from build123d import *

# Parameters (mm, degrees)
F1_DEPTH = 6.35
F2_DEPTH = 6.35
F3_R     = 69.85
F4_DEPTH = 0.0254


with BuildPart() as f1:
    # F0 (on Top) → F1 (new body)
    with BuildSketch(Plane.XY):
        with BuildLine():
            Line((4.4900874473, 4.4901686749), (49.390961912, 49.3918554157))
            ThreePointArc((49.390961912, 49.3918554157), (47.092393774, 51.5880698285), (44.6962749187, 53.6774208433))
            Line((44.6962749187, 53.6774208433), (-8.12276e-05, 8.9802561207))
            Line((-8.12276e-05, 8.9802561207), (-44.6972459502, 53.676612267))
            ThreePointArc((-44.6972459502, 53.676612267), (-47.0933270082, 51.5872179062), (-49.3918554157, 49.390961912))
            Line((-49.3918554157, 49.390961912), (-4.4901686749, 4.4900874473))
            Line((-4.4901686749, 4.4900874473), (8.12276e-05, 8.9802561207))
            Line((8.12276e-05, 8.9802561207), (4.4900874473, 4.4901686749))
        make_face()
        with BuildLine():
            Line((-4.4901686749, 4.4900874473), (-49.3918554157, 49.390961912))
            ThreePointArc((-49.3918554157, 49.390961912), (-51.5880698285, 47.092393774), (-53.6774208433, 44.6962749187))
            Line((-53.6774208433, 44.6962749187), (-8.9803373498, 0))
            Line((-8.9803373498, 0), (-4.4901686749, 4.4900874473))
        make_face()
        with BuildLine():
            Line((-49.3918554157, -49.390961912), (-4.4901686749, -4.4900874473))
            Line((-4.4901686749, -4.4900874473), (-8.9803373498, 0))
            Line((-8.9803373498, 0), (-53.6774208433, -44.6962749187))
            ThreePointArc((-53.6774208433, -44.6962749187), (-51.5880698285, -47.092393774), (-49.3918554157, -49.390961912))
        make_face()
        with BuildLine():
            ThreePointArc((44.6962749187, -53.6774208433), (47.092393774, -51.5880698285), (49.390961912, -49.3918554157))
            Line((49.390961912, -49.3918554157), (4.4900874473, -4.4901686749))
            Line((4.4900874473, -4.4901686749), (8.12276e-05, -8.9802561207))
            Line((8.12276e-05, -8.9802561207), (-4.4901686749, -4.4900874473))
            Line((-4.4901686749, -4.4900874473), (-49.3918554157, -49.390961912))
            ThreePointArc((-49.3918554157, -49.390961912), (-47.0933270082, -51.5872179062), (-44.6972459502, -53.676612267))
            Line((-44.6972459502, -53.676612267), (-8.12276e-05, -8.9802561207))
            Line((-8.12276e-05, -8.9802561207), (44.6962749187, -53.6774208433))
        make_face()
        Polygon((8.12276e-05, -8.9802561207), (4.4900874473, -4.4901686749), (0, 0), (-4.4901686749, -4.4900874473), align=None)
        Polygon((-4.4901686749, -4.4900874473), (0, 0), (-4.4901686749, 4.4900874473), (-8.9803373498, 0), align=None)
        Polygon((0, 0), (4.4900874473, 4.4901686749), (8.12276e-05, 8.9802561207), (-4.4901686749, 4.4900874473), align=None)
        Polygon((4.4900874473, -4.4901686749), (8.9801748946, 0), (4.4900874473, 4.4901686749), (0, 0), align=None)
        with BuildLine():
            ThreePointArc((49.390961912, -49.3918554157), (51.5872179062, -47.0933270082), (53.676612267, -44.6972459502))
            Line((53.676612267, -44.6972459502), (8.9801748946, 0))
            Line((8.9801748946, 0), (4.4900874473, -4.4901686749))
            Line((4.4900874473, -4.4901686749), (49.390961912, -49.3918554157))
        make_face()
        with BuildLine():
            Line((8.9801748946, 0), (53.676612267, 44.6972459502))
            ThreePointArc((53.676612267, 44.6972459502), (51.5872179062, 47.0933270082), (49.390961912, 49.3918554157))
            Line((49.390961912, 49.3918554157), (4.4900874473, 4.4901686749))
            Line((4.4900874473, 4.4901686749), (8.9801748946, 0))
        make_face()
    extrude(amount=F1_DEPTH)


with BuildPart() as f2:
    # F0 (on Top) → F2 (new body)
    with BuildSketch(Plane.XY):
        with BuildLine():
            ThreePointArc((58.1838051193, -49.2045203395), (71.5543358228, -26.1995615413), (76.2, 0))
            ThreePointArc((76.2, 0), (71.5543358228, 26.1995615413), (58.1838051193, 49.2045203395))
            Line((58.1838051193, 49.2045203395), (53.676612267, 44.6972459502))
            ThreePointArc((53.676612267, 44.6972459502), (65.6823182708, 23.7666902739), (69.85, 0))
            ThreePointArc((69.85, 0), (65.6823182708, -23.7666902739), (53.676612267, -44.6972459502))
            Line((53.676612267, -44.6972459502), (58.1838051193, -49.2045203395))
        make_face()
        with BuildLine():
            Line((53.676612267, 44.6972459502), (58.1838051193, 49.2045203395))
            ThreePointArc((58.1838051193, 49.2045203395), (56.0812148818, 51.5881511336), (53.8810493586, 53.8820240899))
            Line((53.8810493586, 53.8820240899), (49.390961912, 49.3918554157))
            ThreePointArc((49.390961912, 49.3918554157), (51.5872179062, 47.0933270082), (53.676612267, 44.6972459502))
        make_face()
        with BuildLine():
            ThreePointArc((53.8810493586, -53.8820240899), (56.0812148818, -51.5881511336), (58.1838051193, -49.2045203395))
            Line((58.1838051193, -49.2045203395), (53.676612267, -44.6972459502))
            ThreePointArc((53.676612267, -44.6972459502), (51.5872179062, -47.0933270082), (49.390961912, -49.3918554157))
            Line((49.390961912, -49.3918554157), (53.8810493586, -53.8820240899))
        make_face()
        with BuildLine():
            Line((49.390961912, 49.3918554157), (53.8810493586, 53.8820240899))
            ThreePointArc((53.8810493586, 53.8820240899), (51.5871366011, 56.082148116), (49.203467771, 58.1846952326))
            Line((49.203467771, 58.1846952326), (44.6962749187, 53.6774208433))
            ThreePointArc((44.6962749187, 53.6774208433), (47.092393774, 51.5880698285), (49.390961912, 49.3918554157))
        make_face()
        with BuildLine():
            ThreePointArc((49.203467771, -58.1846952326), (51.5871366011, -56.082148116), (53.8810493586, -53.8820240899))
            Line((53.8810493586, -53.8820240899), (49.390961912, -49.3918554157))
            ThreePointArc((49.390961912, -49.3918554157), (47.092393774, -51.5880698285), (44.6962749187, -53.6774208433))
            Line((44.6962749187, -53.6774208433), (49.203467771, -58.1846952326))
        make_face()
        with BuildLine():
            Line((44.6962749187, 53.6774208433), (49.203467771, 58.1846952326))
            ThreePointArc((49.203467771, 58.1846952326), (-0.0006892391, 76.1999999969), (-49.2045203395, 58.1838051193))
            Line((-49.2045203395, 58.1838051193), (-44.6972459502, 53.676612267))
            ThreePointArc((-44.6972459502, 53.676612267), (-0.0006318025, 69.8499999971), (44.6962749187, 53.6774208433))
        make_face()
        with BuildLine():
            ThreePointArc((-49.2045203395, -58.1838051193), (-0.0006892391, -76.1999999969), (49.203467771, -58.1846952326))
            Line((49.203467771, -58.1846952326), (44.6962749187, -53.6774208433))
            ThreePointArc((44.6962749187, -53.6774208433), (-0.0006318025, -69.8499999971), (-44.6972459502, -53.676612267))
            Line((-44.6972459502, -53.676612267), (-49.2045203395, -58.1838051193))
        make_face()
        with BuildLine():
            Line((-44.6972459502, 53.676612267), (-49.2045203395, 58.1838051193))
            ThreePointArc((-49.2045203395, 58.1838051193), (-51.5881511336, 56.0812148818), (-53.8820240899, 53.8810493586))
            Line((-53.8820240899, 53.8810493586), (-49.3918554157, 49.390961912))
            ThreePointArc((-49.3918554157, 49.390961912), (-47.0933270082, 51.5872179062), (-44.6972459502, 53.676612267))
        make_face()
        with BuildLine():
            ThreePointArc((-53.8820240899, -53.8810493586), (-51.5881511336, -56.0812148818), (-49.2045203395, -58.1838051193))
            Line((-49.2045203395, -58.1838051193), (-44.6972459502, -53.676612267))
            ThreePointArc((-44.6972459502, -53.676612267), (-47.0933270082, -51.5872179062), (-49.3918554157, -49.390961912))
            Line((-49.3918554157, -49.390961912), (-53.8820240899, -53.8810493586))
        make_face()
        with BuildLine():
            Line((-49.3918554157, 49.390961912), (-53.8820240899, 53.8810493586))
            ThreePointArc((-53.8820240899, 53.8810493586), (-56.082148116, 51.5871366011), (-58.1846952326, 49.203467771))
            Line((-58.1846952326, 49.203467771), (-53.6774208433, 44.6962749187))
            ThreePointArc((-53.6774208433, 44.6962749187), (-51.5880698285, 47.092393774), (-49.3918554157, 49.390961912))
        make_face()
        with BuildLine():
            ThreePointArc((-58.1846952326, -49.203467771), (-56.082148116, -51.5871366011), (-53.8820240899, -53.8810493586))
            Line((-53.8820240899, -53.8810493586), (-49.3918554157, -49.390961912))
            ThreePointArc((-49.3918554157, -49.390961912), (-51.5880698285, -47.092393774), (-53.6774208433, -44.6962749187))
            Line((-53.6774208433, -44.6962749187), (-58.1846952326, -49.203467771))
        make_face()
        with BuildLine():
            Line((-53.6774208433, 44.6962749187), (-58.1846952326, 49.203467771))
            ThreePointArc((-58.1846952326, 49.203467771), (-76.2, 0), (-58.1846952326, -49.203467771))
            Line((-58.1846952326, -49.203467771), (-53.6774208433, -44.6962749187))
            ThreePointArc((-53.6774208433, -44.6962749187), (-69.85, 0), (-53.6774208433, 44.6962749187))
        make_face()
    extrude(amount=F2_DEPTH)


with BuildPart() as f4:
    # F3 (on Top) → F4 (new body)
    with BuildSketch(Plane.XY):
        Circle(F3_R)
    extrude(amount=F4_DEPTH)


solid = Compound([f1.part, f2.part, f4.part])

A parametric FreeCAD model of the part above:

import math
import FreeCAD as App
import Part
import Sketcher

V = App.Vector
Q = App.Units.Quantity

doc = App.newDocument("Part")
body = doc.addObject("PartDesign::Body", "Body")

# Sketch on XY plane
sketch1 = body.newObject("Sketcher::SketchObject", "Sketch")
sketch1.AttachmentSupport = (doc.getObject("XY_Plane"), [""])
sketch1.MapMode = "FlatFace"
sketch1.addGeometry(Part.ArcOfCircle(Part.Circle(V(0, 0, 0), V(0, 0, 1), 69.85), math.radians(129.78461), math.radians(135.000518)), False)
sketch1.addGeometry(Part.ArcOfCircle(Part.Circle(V(0, 0, 0), V(0, 0, 1), 69.85), math.radians(135.000518), math.radians(140.216427)), False)
sketch1.addGeometry(Part.LineSegment(V(-53.677421, 44.696275, 0), V(-8.980337, 0, 0)), False)
sketch1.addGeometry(Part.LineSegment(V(-8.980337, 0, 0), V(-53.677421, -44.696275, 0)), False)
sketch1.addGeometry(Part.ArcOfCircle(Part.Circle(V(0, 0, 0), V(0, 0, 1), 69.85), math.radians(-140.216427), math.radians(-135.000518)), False)
sketch1.addGeometry(Part.ArcOfCircle(Part.Circle(V(0, 0, 0), V(0, 0, 1), 69.85), math.radians(-135.000518), math.radians(-129.78461)), False)
sketch1.addGeometry(Part.LineSegment(V(-44.697246, -53.676612, 0), V(-0.000081, -8.980256, 0)), False)
sketch1.addGeometry(Part.LineSegment(V(-0.000081, -8.980256, 0), V(44.696275, -53.677421, 0)), False)
sketch1.addGeometry(Part.ArcOfCircle(Part.Circle(V(0, 0, 0), V(0, 0, 1), 69.85), math.radians(-50.216427), math.radians(-45.000518)), False)
sketch1.addGeometry(Part.ArcOfCircle(Part.Circle(V(0, 0, 0), V(0, 0, 1), 69.85), math.radians(-45.000518), math.radians(-39.78461)), False)
sketch1.addGeometry(Part.LineSegment(V(53.676612, -44.697246, 0), V(8.980175, 0, 0)), False)
sketch1.addGeometry(Part.LineSegment(V(8.980175, 0, 0), V(53.676612, 44.697246, 0)), False)
sketch1.addGeometry(Part.ArcOfCircle(Part.Circle(V(0, 0, 0), V(0, 0, 1), 69.85), math.radians(39.78461), math.radians(45.000518)), False)
sketch1.addGeometry(Part.ArcOfCircle(Part.Circle(V(0, 0, 0), V(0, 0, 1), 69.85), math.radians(45.000518), math.radians(50.216427)), False)
sketch1.addGeometry(Part.LineSegment(V(44.696275, 53.677421, 0), V(-0.000081, 8.980256, 0)), False)
sketch1.addGeometry(Part.LineSegment(V(-0.000081, 8.980256, 0), V(-44.697246, 53.676612, 0)), False)
sketch1.addConstraint(Sketcher.Constraint("Tangent", 0, 2, 1, 1))
sketch1.addConstraint(Sketcher.Constraint("Coincident", 1, 2, 2, 1))
sketch1.addConstraint(Sketcher.Constraint("Coincident", 2, 2, 3, 1))
sketch1.addConstraint(Sketcher.Constraint("Coincident", 3, 2, 4, 1))
sketch1.addConstraint(Sketcher.Constraint("Tangent", 4, 2, 5, 1))
sketch1.addConstraint(Sketcher.Constraint("Coincident", 5, 2, 6, 1))
sketch1.addConstraint(Sketcher.Constraint("Coincident", 6, 2, 7, 1))
sketch1.addConstraint(Sketcher.Constraint("Coincident", 7, 2, 8, 1))
sketch1.addConstraint(Sketcher.Constraint("Tangent", 8, 2, 9, 1))
sketch1.addConstraint(Sketcher.Constraint("Coincident", 9, 2, 10, 1))
sketch1.addConstraint(Sketcher.Constraint("Coincident", 10, 2, 11, 1))
sketch1.addConstraint(Sketcher.Constraint("Coincident", 11, 2, 12, 1))
sketch1.addConstraint(Sketcher.Constraint("Tangent", 12, 2, 13, 1))
sketch1.addConstraint(Sketcher.Constraint("Coincident", 13, 2, 14, 1))
sketch1.addConstraint(Sketcher.Constraint("Coincident", 14, 2, 15, 1))
sketch1.addConstraint(Sketcher.Constraint("Coincident", 15, 2, 0, 1))
sketch1.addConstraint(Sketcher.Constraint("Coincident", 0, 3, -1, 1))
sketch1.addConstraint(Sketcher.Constraint("Coincident", 4, 3, -1, 1))
sketch1.addConstraint(Sketcher.Constraint("Coincident", 8, 3, -1, 1))
sketch1.addConstraint(Sketcher.Constraint("Coincident", 12, 3, -1, 1))
sketch1.addConstraint(Sketcher.Constraint("Equal", 0, 1))
sketch1.addConstraint(Sketcher.Constraint("Equal", 1, 4))
sketch1.addConstraint(Sketcher.Constraint("Equal", 4, 5))
sketch1.addConstraint(Sketcher.Constraint("Equal", 5, 8))
sketch1.addConstraint(Sketcher.Constraint("Equal", 8, 9))
sketch1.addConstraint(Sketcher.Constraint("Equal", 9, 12))
sketch1.addConstraint(Sketcher.Constraint("Equal", 12, 13))
sketch1.addConstraint(Sketcher.Constraint("Symmetric", 6, 2, 14, 2, -1))
sketch1.addConstraint(Sketcher.Constraint("PointOnObject", 2, 2, -1))
sketch1.addConstraint(Sketcher.Constraint("PointOnObject", 10, 2, -1))
sketch1.addConstraint(Sketcher.Constraint("Parallel", 3, 6))
sketch1.addConstraint(Sketcher.Constraint("Perpendicular", 6, 7))
sketch1.addConstraint(Sketcher.Constraint("Parallel", 7, 10))
sketch1.addConstraint(Sketcher.Constraint("Perpendicular", 2, 11))
sketch1.addConstraint(Sketcher.Constraint("Parallel", 11, 14))
sketch1.addConstraint(Sketcher.Constraint("Perpendicular", 14, 15))
sketch1.addConstraint(Sketcher.Constraint("Vertical", 1, 2, 3, 2))
sketch1.addConstraint(Sketcher.Constraint("Vertical", 0, 2, 4, 2))
sketch1.addConstraint(Sketcher.Constraint("Vertical", 8, 2, 12, 2))
sketch1.addConstraint(Sketcher.Constraint("Equal", 6, 7))
sketch1.addConstraint(Sketcher.Constraint("Radius", 0, Q("2.75 in")))
sketch1.addConstraint(Sketcher.Constraint("DistanceY", 8, 2, 6, 2, 40.411599))
sketch1.addConstraint(Sketcher.Constraint("DistanceX", 10, 2, 13, 2, 35.7161))
sketch1.addConstraint(Sketcher.Constraint("Distance", 2, 63.21065))
sketch1.addConstraint(Sketcher.Constraint("Distance", 10, 63.21088))
sketch1.addConstraint(Sketcher.Constraint("DistanceY", -1, 1, 0, 2, 49.390962))
sketch1.addConstraint(Sketcher.Constraint("DistanceX", 1, 2, -1, 1, 53.677421))
pad1 = body.newObject("PartDesign::Pad", "Pad")
pad1.Profile = sketch1
pad1.Length = Q("0.25 in")
body2 = doc.addObject("PartDesign::Body", "Body001")

# Sketch on XY plane
sketch2 = body2.newObject("Sketcher::SketchObject", "Sketch001")
sketch2.AttachmentSupport = (doc.getObject("XY_Plane001"), [""])
sketch2.MapMode = "FlatFace"
sketch2.addGeometry(Part.ArcOfCircle(Part.Circle(V(0, 0, 0), V(0, 0, 1), 76.2), math.radians(-40.220326), math.radians(0)), False)
sketch2.addGeometry(Part.ArcOfCircle(Part.Circle(V(0, 0, 0), V(0, 0, 1), 76.2), math.radians(0), math.radians(40.220326)), False)
sketch2.addGeometry(Part.ArcOfCircle(Part.Circle(V(0, 0, 0), V(0, 0, 1), 76.2), math.radians(40.220326), math.radians(45.000518)), False)
sketch2.addGeometry(Part.ArcOfCircle(Part.Circle(V(0, 0, 0), V(0, 0, 1), 76.2), math.radians(45.000518), math.radians(49.78071)), False)
sketch2.addGeometry(Part.ArcOfCircle(Part.Circle(V(0, 0, 0), V(0, 0, 1), 76.2), math.radians(49.78071), math.radians(130.220326)), False)
sketch2.addGeometry(Part.ArcOfCircle(Part.Circle(V(0, 0, 0), V(0, 0, 1), 76.2), math.radians(130.220326), math.radians(135.000518)), False)
sketch2.addGeometry(Part.ArcOfCircle(Part.Circle(V(0, 0, 0), V(0, 0, 1), 76.2), math.radians(135.000518), math.radians(139.78071)), False)
sketch2.addGeometry(Part.ArcOfCircle(Part.Circle(V(0, 0, 0), V(0, 0, 1), 76.2), math.radians(139.78071), math.radians(220.21929)), False)
sketch2.addGeometry(Part.ArcOfCircle(Part.Circle(V(0, 0, 0), V(0, 0, 1), 76.2), math.radians(-139.78071), math.radians(-135.000518)), False)
sketch2.addGeometry(Part.ArcOfCircle(Part.Circle(V(0, 0, 0), V(0, 0, 1), 76.2), math.radians(-135.000518), math.radians(-130.220326)), False)
sketch2.addGeometry(Part.ArcOfCircle(Part.Circle(V(0, 0, 0), V(0, 0, 1), 76.2), math.radians(-130.220326), math.radians(-49.78071)), False)
sketch2.addGeometry(Part.ArcOfCircle(Part.Circle(V(0, 0, 0), V(0, 0, 1), 76.2), math.radians(-49.78071), math.radians(-45.000518)), False)
sketch2.addGeometry(Part.ArcOfCircle(Part.Circle(V(0, 0, 0), V(0, 0, 1), 76.2), math.radians(-45.000518), math.radians(-40.220326)), False)
sketch2.addGeometry(Part.ArcOfCircle(Part.Circle(V(0, 0, 0), V(0, 0, 1), 69.85), math.radians(135.000518), math.radians(140.216427)), False)
sketch2.addGeometry(Part.ArcOfCircle(Part.Circle(V(0, 0, 0), V(0, 0, 1), 69.85), math.radians(129.78461), math.radians(135.000518)), False)
sketch2.addGeometry(Part.ArcOfCircle(Part.Circle(V(0, 0, 0), V(0, 0, 1), 69.85), math.radians(50.216427), math.radians(129.78461)), False)
sketch2.addGeometry(Part.ArcOfCircle(Part.Circle(V(0, 0, 0), V(0, 0, 1), 69.85), math.radians(45.000518), math.radians(50.216427)), False)
sketch2.addGeometry(Part.ArcOfCircle(Part.Circle(V(0, 0, 0), V(0, 0, 1), 69.85), math.radians(39.78461), math.radians(45.000518)), False)
sketch2.addGeometry(Part.ArcOfCircle(Part.Circle(V(0, 0, 0), V(0, 0, 1), 69.85), math.radians(0), math.radians(39.78461)), False)
sketch2.addGeometry(Part.ArcOfCircle(Part.Circle(V(0, 0, 0), V(0, 0, 1), 69.85), math.radians(-39.78461), math.radians(0)), False)
sketch2.addGeometry(Part.ArcOfCircle(Part.Circle(V(0, 0, 0), V(0, 0, 1), 69.85), math.radians(-45.000518), math.radians(-39.78461)), False)
sketch2.addGeometry(Part.ArcOfCircle(Part.Circle(V(0, 0, 0), V(0, 0, 1), 69.85), math.radians(-50.216427), math.radians(-45.000518)), False)
sketch2.addGeometry(Part.ArcOfCircle(Part.Circle(V(0, 0, 0), V(0, 0, 1), 69.85), math.radians(-129.78461), math.radians(-50.216427)), False)
sketch2.addGeometry(Part.ArcOfCircle(Part.Circle(V(0, 0, 0), V(0, 0, 1), 69.85), math.radians(-135.000518), math.radians(-129.78461)), False)
sketch2.addGeometry(Part.ArcOfCircle(Part.Circle(V(0, 0, 0), V(0, 0, 1), 69.85), math.radians(-140.216427), math.radians(-135.000518)), False)
sketch2.addGeometry(Part.ArcOfCircle(Part.Circle(V(0, 0, 0), V(0, 0, 1), 69.85), math.radians(140.216427), math.radians(219.783573)), False)
sketch2.addConstraint(Sketcher.Constraint("Tangent", 0, 2, 1, 1))
sketch2.addConstraint(Sketcher.Constraint("Tangent", 1, 2, 2, 1))
sketch2.addConstraint(Sketcher.Constraint("Tangent", 2, 2, 3, 1))
sketch2.addConstraint(Sketcher.Constraint("Tangent", 3, 2, 4, 1))
sketch2.addConstraint(Sketcher.Constraint("Tangent", 4, 2, 5, 1))
sketch2.addConstraint(Sketcher.Constraint("Tangent", 5, 2, 6, 1))
sketch2.addConstraint(Sketcher.Constraint("Tangent", 6, 2, 7, 1))
sketch2.addConstraint(Sketcher.Constraint("Tangent", 7, 2, 8, 1))
sketch2.addConstraint(Sketcher.Constraint("Tangent", 8, 2, 9, 1))
sketch2.addConstraint(Sketcher.Constraint("Tangent", 9, 2, 10, 1))
sketch2.addConstraint(Sketcher.Constraint("Tangent", 10, 2, 11, 1))
sketch2.addConstraint(Sketcher.Constraint("Tangent", 11, 2, 12, 1))
sketch2.addConstraint(Sketcher.Constraint("Tangent", 12, 2, 0, 1))
sketch2.addConstraint(Sketcher.Constraint("Tangent", 13, 1, 14, 2))
sketch2.addConstraint(Sketcher.Constraint("Tangent", 14, 1, 15, 2))
sketch2.addConstraint(Sketcher.Constraint("Tangent", 15, 1, 16, 2))
sketch2.addConstraint(Sketcher.Constraint("Tangent", 16, 1, 17, 2))
sketch2.addConstraint(Sketcher.Constraint("Tangent", 17, 1, 18, 2))
sketch2.addConstraint(Sketcher.Constraint("Tangent", 18, 1, 19, 2))
sketch2.addConstraint(Sketcher.Constraint("Tangent", 19, 1, 20, 2))
sketch2.addConstraint(Sketcher.Constraint("Tangent", 20, 1, 21, 2))
sketch2.addConstraint(Sketcher.Constraint("Tangent", 21, 1, 22, 2))
sketch2.addConstraint(Sketcher.Constraint("Tangent", 22, 1, 23, 2))
sketch2.addConstraint(Sketcher.Constraint("Tangent", 23, 1, 24, 2))
sketch2.addConstraint(Sketcher.Constraint("Tangent", 24, 1, 25, 2))
sketch2.addConstraint(Sketcher.Constraint("Tangent", 25, 1, 13, 2))
sketch2.addConstraint(Sketcher.Constraint("Coincident", 0, 3, -1, 1))
sketch2.addConstraint(Sketcher.Constraint("Coincident", 2, 3, -1, 1))
sketch2.addConstraint(Sketcher.Constraint("Coincident", 4, 3, -1, 1))
sketch2.addConstraint(Sketcher.Constraint("Coincident", 6, 3, -1, 1))
sketch2.addConstraint(Sketcher.Constraint("Coincident", 8, 3, -1, 1))
sketch2.addConstraint(Sketcher.Constraint("Coincident", 10, 3, -1, 1))
sketch2.addConstraint(Sketcher.Constraint("Coincident", 13, 3, -1, 1))
sketch2.addConstraint(Sketcher.Constraint("Coincident", 15, 3, -1, 1))
sketch2.addConstraint(Sketcher.Constraint("Coincident", 17, 3, -1, 1))
sketch2.addConstraint(Sketcher.Constraint("Coincident", 19, 3, -1, 1))
sketch2.addConstraint(Sketcher.Constraint("Coincident", 21, 3, -1, 1))
sketch2.addConstraint(Sketcher.Constraint("Coincident", 23, 3, -1, 1))
sketch2.addConstraint(Sketcher.Constraint("PointOnObject", 0, 2, -1))
sketch2.addConstraint(Sketcher.Constraint("PointOnObject", 18, 1, -1))
sketch2.addConstraint(Sketcher.Constraint("Vertical", 6, 2, 7, 2))
sketch2.addConstraint(Sketcher.Constraint("Vertical", 5, 2, 8, 2))
sketch2.addConstraint(Sketcher.Constraint("Vertical", 4, 2, 9, 2))
sketch2.addConstraint(Sketcher.Constraint("Vertical", 3, 2, 10, 2))
sketch2.addConstraint(Sketcher.Constraint("Vertical", 2, 2, 11, 2))
sketch2.addConstraint(Sketcher.Constraint("Vertical", 1, 2, 12, 2))
sketch2.addConstraint(Sketcher.Constraint("Vertical", 17, 1, 19, 1))
sketch2.addConstraint(Sketcher.Constraint("Vertical", 16, 1, 20, 1))
sketch2.addConstraint(Sketcher.Constraint("Vertical", 15, 1, 21, 1))
sketch2.addConstraint(Sketcher.Constraint("Vertical", 14, 1, 22, 1))
sketch2.addConstraint(Sketcher.Constraint("Vertical", 13, 1, 23, 1))
sketch2.addConstraint(Sketcher.Constraint("Vertical", 24, 1, 25, 1))
sketch2.addConstraint(Sketcher.Constraint("Radius", 0, Q("3 in")))
sketch2.addConstraint(Sketcher.Constraint("Radius", 13, Q("2.75 in")))
sketch2.addConstraint(Sketcher.Constraint("DistanceX", 2, 2, 1, 2, Q("0.1693998 in")))
sketch2.addConstraint(Sketcher.Constraint("DistanceY", 5, 2, 4, 2, Q("0.1693998 in")))
sketch2.addConstraint(Sketcher.Constraint("DistanceY", 1, 2, 15, 1, 4.472901))
sketch2.addConstraint(Sketcher.Constraint("DistanceX", 24, 1, 9, 2, 4.472901))
sketch2.addConstraint(Sketcher.Constraint("DistanceY", -1, 1, 1, 2, 49.20452))
sketch2.addConstraint(Sketcher.Constraint("DistanceX", 4, 2, -1, 1, 49.20452))
sketch2.addConstraint(Sketcher.Constraint("DistanceY", -1, 1, 13, 1, 49.390962))
sketch2.addConstraint(Sketcher.Constraint("DistanceX", -1, 1, 16, 1, 49.390962))
sketch2.addConstraint(Sketcher.Constraint("DistanceX", 3, 2, 2, 2, 4.677582))
sketch2.addConstraint(Sketcher.Constraint("DistanceX", 6, 2, 5, 2, 4.302671))
sketch2.addConstraint(Sketcher.Constraint("DistanceX", 13, 1, 14, 1, 4.694609))
sketch2.addConstraint(Sketcher.Constraint("DistanceX", 16, 1, 17, 1, 4.28565))
pad2 = body2.newObject("PartDesign::Pad", "Pad001")
pad2.Profile = sketch2
pad2.Length = Q("0.25 in")
body3 = doc.addObject("PartDesign::Body", "Body002")

# Sketch on XY plane
sketch3 = body3.newObject("Sketcher::SketchObject", "Sketch002")
sketch3.AttachmentSupport = (doc.getObject("XY_Plane002"), [""])
sketch3.MapMode = "FlatFace"
sketch3.addGeometry(Part.Circle(V(0, 0, 0), V(0, 0, 1), 69.85), False)
sketch3.addConstraint(Sketcher.Constraint("Coincident", 0, 3, -1, 1))
sketch3.addConstraint(Sketcher.Constraint("Diameter", 0, Q("5.5 in")))
pad3 = body3.newObject("PartDesign::Pad", "Pad002")
pad3.Profile = sketch3
pad3.Length = Q("0.001 in")

doc.recompute()
